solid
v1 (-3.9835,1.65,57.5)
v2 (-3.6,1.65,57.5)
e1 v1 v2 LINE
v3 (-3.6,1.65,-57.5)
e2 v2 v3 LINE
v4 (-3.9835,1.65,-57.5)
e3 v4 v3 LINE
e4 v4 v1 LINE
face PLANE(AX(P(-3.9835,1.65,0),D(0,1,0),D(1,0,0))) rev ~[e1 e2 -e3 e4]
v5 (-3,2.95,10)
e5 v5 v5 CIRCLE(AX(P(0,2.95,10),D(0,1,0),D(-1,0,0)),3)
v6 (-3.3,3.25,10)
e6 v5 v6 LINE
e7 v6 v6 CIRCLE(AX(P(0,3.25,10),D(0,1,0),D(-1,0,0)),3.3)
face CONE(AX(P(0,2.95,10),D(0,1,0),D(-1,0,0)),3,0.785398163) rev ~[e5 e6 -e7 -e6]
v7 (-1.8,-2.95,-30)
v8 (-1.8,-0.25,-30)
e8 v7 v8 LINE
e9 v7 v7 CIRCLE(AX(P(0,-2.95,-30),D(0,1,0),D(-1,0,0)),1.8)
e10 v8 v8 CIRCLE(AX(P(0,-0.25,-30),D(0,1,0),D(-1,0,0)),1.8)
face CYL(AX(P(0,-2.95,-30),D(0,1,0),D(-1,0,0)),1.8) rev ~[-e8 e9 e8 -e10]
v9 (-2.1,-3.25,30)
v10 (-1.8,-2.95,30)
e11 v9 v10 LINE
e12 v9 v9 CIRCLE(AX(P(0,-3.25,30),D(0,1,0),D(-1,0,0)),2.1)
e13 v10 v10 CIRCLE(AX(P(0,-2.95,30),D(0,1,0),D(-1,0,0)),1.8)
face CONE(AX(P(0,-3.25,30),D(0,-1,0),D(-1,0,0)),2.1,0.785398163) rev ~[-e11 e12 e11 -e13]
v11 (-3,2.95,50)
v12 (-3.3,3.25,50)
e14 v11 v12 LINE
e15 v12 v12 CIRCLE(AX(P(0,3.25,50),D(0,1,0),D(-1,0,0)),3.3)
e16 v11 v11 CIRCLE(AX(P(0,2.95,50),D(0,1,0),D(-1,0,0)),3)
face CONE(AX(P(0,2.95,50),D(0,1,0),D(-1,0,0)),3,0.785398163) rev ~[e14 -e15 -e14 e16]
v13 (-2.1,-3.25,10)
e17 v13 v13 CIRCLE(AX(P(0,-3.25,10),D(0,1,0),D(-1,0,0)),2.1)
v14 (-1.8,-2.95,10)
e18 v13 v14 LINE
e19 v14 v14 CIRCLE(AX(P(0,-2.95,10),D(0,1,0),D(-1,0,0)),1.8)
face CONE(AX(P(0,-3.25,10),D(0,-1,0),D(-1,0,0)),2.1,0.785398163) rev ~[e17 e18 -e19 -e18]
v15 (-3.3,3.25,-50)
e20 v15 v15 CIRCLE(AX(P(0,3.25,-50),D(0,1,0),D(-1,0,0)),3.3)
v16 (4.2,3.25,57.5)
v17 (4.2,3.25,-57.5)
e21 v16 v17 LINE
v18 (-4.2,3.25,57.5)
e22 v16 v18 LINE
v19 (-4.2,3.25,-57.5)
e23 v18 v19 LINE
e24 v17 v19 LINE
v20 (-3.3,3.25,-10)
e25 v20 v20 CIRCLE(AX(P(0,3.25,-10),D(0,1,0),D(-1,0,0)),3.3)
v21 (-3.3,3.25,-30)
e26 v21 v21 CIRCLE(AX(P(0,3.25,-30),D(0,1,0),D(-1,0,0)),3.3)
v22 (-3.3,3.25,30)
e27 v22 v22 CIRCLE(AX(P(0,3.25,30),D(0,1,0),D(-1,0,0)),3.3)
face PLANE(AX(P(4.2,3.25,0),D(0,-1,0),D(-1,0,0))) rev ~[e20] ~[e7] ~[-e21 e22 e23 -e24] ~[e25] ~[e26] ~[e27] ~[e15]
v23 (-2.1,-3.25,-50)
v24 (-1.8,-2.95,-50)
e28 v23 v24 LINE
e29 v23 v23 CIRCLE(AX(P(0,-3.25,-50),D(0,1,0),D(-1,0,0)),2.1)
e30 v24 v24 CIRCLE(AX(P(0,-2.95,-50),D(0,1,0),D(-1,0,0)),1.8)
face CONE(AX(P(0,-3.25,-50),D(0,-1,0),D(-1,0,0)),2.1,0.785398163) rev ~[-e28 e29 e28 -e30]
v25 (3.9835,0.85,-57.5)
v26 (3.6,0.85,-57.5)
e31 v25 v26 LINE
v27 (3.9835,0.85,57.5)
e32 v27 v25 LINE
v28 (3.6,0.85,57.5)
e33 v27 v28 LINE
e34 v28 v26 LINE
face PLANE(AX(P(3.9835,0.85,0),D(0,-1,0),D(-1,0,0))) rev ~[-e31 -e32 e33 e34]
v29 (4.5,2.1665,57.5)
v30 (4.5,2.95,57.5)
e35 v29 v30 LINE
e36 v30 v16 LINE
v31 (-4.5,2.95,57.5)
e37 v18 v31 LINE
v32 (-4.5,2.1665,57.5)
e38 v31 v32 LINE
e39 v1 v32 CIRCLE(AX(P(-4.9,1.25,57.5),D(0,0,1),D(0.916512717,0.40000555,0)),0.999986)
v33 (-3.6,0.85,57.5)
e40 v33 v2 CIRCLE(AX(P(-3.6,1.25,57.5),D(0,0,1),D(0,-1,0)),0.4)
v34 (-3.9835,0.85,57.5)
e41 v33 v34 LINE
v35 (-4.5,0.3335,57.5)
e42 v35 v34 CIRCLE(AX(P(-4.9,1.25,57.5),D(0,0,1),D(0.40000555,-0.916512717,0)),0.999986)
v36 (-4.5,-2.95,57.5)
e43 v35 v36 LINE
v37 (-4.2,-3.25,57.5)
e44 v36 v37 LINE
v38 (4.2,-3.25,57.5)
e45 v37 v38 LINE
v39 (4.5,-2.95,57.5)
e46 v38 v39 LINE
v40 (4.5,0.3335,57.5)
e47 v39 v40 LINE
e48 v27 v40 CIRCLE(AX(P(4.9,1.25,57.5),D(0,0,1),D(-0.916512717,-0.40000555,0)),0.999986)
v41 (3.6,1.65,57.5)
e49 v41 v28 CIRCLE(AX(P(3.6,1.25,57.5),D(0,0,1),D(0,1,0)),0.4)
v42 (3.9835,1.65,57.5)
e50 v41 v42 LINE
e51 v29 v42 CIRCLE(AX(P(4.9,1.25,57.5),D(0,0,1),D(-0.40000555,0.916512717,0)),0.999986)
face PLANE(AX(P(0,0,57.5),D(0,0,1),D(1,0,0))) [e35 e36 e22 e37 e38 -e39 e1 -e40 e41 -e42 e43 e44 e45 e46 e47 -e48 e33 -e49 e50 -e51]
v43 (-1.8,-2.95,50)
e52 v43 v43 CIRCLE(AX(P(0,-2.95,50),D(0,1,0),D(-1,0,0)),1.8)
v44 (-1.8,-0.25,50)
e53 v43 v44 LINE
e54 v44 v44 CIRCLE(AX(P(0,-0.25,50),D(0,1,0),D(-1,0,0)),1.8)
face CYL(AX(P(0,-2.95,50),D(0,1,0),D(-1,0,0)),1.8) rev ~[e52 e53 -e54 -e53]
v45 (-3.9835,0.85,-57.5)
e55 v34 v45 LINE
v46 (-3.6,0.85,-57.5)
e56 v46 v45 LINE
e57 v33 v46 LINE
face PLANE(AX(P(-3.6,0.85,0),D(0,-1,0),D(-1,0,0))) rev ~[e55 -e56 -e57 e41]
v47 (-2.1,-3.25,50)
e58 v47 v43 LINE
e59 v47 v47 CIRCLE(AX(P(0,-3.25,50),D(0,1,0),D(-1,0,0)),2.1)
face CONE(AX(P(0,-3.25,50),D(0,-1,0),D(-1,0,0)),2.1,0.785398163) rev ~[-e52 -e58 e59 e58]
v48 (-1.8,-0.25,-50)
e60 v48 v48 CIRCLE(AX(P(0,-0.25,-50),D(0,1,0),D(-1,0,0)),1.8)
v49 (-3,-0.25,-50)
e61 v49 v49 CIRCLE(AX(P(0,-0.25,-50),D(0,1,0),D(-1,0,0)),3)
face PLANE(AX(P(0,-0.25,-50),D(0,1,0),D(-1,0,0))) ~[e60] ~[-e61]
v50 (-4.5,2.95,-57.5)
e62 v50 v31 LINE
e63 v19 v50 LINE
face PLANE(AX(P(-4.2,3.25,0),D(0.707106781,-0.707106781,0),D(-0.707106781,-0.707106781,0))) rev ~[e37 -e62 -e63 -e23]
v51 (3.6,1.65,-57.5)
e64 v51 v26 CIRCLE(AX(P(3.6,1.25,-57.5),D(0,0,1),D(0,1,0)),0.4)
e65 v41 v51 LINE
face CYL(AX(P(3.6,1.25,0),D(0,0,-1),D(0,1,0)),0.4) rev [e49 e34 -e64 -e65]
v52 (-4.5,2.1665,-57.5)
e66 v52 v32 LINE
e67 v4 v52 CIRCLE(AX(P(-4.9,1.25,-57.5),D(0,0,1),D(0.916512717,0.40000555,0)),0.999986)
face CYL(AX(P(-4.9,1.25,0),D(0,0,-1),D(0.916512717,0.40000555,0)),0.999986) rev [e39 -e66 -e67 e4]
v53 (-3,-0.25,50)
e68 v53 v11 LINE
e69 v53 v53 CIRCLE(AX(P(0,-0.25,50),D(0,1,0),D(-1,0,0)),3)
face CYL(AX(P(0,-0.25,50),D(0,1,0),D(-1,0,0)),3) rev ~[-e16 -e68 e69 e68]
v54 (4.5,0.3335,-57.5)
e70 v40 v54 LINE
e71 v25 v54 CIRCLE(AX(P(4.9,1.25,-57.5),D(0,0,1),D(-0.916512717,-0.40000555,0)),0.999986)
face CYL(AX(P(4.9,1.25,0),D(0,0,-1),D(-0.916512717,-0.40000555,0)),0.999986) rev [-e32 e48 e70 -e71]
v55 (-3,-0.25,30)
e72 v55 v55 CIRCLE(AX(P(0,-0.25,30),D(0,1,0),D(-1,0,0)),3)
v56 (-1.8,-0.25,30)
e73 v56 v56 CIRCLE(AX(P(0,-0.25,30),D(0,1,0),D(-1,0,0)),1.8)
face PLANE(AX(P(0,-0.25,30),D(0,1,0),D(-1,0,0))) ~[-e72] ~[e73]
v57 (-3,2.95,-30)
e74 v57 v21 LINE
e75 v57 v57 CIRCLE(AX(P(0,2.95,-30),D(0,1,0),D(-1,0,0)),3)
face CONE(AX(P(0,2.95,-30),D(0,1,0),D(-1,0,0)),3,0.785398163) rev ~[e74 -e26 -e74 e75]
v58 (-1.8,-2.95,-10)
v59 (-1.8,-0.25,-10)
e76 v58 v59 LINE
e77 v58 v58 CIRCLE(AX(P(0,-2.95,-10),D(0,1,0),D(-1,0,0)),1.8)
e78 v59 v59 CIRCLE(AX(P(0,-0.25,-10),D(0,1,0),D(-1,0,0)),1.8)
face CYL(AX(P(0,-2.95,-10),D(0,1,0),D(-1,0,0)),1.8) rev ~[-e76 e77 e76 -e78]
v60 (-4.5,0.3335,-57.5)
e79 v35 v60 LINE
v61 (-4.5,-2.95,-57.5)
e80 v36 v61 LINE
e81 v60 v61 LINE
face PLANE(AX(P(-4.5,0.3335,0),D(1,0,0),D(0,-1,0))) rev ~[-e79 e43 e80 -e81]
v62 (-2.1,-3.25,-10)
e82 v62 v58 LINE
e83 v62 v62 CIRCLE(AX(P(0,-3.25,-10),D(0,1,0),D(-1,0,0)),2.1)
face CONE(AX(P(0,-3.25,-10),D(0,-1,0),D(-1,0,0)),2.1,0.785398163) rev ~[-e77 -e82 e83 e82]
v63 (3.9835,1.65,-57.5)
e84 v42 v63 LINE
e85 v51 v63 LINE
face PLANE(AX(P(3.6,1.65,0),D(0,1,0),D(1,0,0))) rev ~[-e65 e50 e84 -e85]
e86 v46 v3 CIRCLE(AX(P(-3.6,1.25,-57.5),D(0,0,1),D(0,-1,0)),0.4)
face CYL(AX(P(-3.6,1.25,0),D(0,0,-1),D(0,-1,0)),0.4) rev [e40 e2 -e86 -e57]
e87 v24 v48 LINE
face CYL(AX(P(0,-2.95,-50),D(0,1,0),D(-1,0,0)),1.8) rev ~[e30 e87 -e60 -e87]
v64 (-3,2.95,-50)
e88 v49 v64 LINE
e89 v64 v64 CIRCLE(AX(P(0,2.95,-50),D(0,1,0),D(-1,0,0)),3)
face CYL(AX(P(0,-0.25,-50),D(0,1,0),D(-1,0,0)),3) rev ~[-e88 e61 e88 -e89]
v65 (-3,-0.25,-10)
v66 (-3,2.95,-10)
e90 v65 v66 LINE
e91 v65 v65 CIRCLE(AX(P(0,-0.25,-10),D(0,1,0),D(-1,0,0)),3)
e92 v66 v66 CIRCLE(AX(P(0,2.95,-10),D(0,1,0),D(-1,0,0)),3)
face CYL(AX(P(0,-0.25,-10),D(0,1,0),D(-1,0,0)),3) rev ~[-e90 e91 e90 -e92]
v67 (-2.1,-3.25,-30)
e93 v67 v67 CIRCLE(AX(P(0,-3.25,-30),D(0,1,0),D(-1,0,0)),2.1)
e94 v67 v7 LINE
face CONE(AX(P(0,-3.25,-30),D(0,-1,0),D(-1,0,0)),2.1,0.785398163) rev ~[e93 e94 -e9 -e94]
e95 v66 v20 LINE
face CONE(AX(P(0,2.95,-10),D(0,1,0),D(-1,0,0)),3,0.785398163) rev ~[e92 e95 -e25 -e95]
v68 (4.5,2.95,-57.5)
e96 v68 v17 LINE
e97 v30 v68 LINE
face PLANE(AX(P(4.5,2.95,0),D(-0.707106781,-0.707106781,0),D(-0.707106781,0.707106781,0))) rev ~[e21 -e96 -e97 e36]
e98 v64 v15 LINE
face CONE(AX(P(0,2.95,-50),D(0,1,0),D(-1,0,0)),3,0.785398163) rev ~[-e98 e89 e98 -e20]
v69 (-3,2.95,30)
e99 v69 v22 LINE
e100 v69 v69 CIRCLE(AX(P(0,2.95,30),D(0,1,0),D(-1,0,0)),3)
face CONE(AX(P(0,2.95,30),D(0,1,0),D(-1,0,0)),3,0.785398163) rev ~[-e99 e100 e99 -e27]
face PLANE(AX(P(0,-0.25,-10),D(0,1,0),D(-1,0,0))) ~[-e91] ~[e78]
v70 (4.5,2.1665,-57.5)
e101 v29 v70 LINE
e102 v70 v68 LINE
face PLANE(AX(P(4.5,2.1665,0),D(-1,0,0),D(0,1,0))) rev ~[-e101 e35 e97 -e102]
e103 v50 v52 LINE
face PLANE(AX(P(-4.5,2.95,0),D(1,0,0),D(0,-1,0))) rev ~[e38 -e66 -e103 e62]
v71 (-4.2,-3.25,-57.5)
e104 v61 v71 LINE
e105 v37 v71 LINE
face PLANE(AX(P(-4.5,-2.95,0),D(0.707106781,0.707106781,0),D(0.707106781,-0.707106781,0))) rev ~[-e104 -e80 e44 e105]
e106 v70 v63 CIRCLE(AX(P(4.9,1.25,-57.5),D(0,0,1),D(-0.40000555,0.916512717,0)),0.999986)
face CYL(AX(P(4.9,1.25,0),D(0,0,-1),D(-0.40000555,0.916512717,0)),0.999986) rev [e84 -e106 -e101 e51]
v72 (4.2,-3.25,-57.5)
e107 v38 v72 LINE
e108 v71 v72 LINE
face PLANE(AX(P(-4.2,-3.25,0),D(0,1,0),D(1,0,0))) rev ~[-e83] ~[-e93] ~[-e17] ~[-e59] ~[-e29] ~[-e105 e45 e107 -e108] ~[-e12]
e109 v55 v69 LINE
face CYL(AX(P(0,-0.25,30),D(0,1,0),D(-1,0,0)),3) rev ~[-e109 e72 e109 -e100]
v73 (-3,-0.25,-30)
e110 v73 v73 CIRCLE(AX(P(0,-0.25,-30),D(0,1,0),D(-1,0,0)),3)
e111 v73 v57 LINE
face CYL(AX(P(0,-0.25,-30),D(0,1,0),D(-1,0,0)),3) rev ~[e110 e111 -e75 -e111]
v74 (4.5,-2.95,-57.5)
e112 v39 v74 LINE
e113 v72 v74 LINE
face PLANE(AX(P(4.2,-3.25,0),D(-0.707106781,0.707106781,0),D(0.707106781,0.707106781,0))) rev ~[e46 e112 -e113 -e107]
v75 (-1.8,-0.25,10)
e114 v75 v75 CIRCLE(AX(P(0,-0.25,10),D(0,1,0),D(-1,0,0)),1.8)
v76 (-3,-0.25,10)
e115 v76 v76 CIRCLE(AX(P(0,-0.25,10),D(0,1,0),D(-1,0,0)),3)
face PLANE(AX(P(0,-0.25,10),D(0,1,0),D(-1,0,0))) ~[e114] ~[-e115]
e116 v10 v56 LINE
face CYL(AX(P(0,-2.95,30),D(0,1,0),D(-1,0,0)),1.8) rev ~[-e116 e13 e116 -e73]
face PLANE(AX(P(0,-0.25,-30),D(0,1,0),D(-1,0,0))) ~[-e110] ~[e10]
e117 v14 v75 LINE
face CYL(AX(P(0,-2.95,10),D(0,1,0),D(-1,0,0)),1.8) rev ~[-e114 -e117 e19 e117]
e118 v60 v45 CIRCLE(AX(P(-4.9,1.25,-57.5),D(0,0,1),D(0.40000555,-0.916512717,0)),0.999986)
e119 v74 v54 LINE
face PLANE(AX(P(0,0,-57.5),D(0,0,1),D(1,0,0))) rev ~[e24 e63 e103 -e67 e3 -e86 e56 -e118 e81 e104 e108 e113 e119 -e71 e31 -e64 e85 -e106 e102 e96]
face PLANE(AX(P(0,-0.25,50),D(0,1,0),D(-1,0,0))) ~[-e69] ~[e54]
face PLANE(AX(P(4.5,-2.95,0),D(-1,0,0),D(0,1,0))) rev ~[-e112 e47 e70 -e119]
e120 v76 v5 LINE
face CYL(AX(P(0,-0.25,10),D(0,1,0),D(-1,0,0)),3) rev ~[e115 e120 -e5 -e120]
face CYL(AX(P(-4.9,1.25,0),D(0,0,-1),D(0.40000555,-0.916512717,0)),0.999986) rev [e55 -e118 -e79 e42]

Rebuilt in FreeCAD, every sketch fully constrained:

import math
import FreeCAD as App
import Part
import Sketcher

V = App.Vector
Q = App.Units.Quantity


def add_polygon(sketch, points):
    """Adds a closed chain of lines whose ends are joined by coincident constraints."""
    first, n = sketch.GeometryCount, len(points)
    for a, b in zip(points, points[1:] + points[:1]):
        sketch.addGeometry(Part.LineSegment(App.Vector(*a, 0), App.Vector(*b, 0)), False)
    for i in range(n):
        sketch.addConstraint(Sketcher.Constraint("Coincident", first + i, 2, first + (i + 1) % n, 1))

doc = App.newDocument("Part")
body = doc.addObject("PartDesign::Body", "Body")

# Sketch on XY plane
sketch1 = body.newObject("Sketcher::SketchObject", "Sketch")
sketch1.AttachmentSupport = (doc.getObject("XY_Plane"), [""])
sketch1.MapMode = "FlatFace"
sketch1.addGeometry(Part.LineSegment(V(-4.2, 3.25, 0), V(-4.5, 2.95, 0)), False)
sketch1.addGeometry(Part.LineSegment(V(-4.5, 2.95, 0), V(-4.5, 2.17, 0)), False)
sketch1.addGeometry(Part.ArcOfCircle(Part.Circle(V(-4.9, 1.25, 0), V(0, 0, 1), 1), math.radians(24), math.radians(66)), False)
sketch1.addGeometry(Part.LineSegment(V(-3.98, 1.65, 0), V(-3.6, 1.65, 0)), False)
sketch1.addGeometry(Part.ArcOfCircle(Part.Circle(V(-3.6, 1.25, 0), V(0, 0, 1), 0.4), math.radians(-90), math.radians(90)), False)
sketch1.addGeometry(Part.LineSegment(V(-3.6, 0.85, 0), V(-3.98, 0.85, 0)), False)
sketch1.addGeometry(Part.ArcOfCircle(Part.Circle(V(-4.9, 1.25, 0), V(0, 0, 1), 1), math.radians(-66), math.radians(-24)), False)
sketch1.addGeometry(Part.LineSegment(V(-4.5, 0.33, 0), V(-4.5, -2.95, 0)), False)
sketch1.addGeometry(Part.LineSegment(V(-4.5, -2.95, 0), V(-4.2, -3.25, 0)), False)
sketch1.addGeometry(Part.LineSegment(V(-4.2, -3.25, 0), V(4.2, -3.25, 0)), False)
sketch1.addGeometry(Part.LineSegment(V(4.2, -3.25, 0), V(4.5, -2.95, 0)), False)
sketch1.addGeometry(Part.LineSegment(V(4.5, -2.95, 0), V(4.5, 0.33, 0)), False)
sketch1.addGeometry(Part.ArcOfCircle(Part.Circle(V(4.9, 1.25, 0), V(0, 0, 1), 1), math.radians(-156), math.radians(-114)), False)
sketch1.addGeometry(Part.LineSegment(V(3.98, 0.85, 0), V(3.6, 0.85, 0)), False)
sketch1.addGeometry(Part.ArcOfCircle(Part.Circle(V(3.6, 1.25, 0), V(0, 0, 1), 0.4), math.radians(90), math.radians(270)), False)
sketch1.addGeometry(Part.LineSegment(V(3.6, 1.65, 0), V(3.98, 1.65, 0)), False)
sketch1.addGeometry(Part.ArcOfCircle(Part.Circle(V(4.9, 1.25, 0), V(0, 0, 1), 1), math.radians(114), math.radians(156)), False)
sketch1.addGeometry(Part.LineSegment(V(4.5, 2.17, 0), V(4.5, 2.95, 0)), False)
sketch1.addGeometry(Part.LineSegment(V(4.5, 2.95, 0), V(4.2, 3.25, 0)), False)
sketch1.addGeometry(Part.LineSegment(V(4.2, 3.25, 0), V(-4.2, 3.25, 0)), False)
sketch1.addConstraint(Sketcher.Constraint("Coincident", 0, 2, 1, 1))
sketch1.addConstraint(Sketcher.Constraint("Coincident", 1, 2, 2, 2))
sketch1.addConstraint(Sketcher.Constraint("Coincident", 2, 1, 3, 1))
sketch1.addConstraint(Sketcher.Constraint("Tangent", 3, 2, 4, 2))
sketch1.addConstraint(Sketcher.Constraint("Tangent", 4, 1, 5, 1))
sketch1.addConstraint(Sketcher.Constraint("Coincident", 5, 2, 6, 2))
sketch1.addConstraint(Sketcher.Constraint("Coincident", 6, 1, 7, 1))
sketch1.addConstraint(Sketcher.Constraint("Coincident", 7, 2, 8, 1))
sketch1.addConstraint(Sketcher.Constraint("Coincident", 8, 2, 9, 1))
sketch1.addConstraint(Sketcher.Constraint("Coincident", 9, 2, 10, 1))
sketch1.addConstraint(Sketcher.Constraint("Coincident", 10, 2, 11, 1))
sketch1.addConstraint(Sketcher.Constraint("Coincident", 11, 2, 12, 2))
sketch1.addConstraint(Sketcher.Constraint("Coincident", 12, 1, 13, 1))
sketch1.addConstraint(Sketcher.Constraint("Tangent", 13, 2, 14, 2))
sketch1.addConstraint(Sketcher.Constraint("Tangent", 14, 1, 15, 1))
sketch1.addConstraint(Sketcher.Constraint("Coincident", 15, 2, 16, 2))
sketch1.addConstraint(Sketcher.Constraint("Coincident", 16, 1, 17, 1))
sketch1.addConstraint(Sketcher.Constraint("Coincident", 17, 2, 18, 1))
sketch1.addConstraint(Sketcher.Constraint("Coincident", 18, 2, 19, 1))
sketch1.addConstraint(Sketcher.Constraint("Coincident", 19, 2, 0, 1))
sketch1.addConstraint(Sketcher.Constraint("Vertical", 1))
sketch1.addConstraint(Sketcher.Constraint("Horizontal", 3))
sketch1.addConstraint(Sketcher.Constraint("Horizontal", 5))
sketch1.addConstraint(Sketcher.Constraint("Vertical", 7))
sketch1.addConstraint(Sketcher.Constraint("Horizontal", 9))
sketch1.addConstraint(Sketcher.Constraint("Vertical", 11))
sketch1.addConstraint(Sketcher.Constraint("Horizontal", 13))
sketch1.addConstraint(Sketcher.Constraint("Horizontal", 15))
sketch1.addConstraint(Sketcher.Constraint("Vertical", 17))
sketch1.addConstraint(Sketcher.Constraint("Horizontal", 19))
sketch1.addConstraint(Sketcher.Constraint("Coincident", 6, 3, 2, 3))
sketch1.addConstraint(Sketcher.Constraint("Coincident", 16, 3, 12, 3))
sketch1.addConstraint(Sketcher.Constraint("Equal", 2, 6))
sketch1.addConstraint(Sketcher.Constraint("Equal", 6, 12))
sketch1.addConstraint(Sketcher.Constraint("Equal", 4, 14))
sketch1.addConstraint(Sketcher.Constraint("Equal", 12, 16))
sketch1.addConstraint(Sketcher.Constraint("Symmetric", 0, 2, 10, 2, -1, 1))
sketch1.addConstraint(Sketcher.Constraint("Symmetric", 7, 2, 17, 2, -1, 1))
sketch1.addConstraint(Sketcher.Constraint("Symmetric", 8, 2, 18, 2, -1, 1))
sketch1.addConstraint(Sketcher.Constraint("Symmetric", 2, 3, 12, 3, -2))
sketch1.addConstraint(Sketcher.Constraint("Symmetric", 4, 3, 14, 3, -2))
sketch1.addConstraint(Sketcher.Constraint("Symmetric", 7, 2, 10, 2, -2))
sketch1.addConstraint(Sketcher.Constraint("Perpendicular", 0, 8))
sketch1.addConstraint(Sketcher.Constraint("Perpendicular", 8, 10))
sketch1.addConstraint(Sketcher.Constraint("Horizontal", 2, 3, 4, 3))
sketch1.addConstraint(Sketcher.Constraint("Vertical", 9, 2, 18, 2))
sketch1.addConstraint(Sketcher.Constraint("Radius", 2, 1.0))
sketch1.addConstraint(Sketcher.Constraint("Radius", 4, 0.4))
sketch1.addConstraint(Sketcher.Constraint("DistanceX", 9, 1, 9, 2, 8.4))
sketch1.addConstraint(Sketcher.Constraint("DistanceY", 14, 3, 18, 2, 2.0))
sketch1.addConstraint(Sketcher.Constraint("DistanceX", 2, 3, -1, 1, 4.9))
sketch1.addConstraint(Sketcher.Constraint("DistanceX", 4, 3, -1, 1, 3.6))
sketch1.addConstraint(Sketcher.Constraint("DistanceX", 0, 2, -1, 1, 4.5))
sketch1.addConstraint(Sketcher.Constraint("DistanceY", 7, 2, 5, 2, 3.8))
pad1 = body.newObject("PartDesign::Pad", "Pad")
pad1.Profile = sketch1
pad1.Length = 115
pad1.Midplane = True

# Sketch on XY plane
sketch2 = body.newObject("Sketcher::SketchObject", "Sketch001")
sketch2.AttachmentSupport = (doc.getObject("XY_Plane"), [""])
sketch2.MapMode = "FlatFace"
sketch2.AttachmentOffset = App.Placement(V(0, 0, 50), App.Rotation())
add_polygon(sketch2, [(0, -3.25), (0, 3.25), (-3.3, 3.25), (-3, 2.95), (-3, -0.25), (-1.8, -0.25), (-1.8, -2.95), (-2.1, -3.25)])  # lines 0-7
sketch2.addConstraint(Sketcher.Constraint("Vertical", 0))
sketch2.addConstraint(Sketcher.Constraint("Horizontal", 1))
sketch2.addConstraint(Sketcher.Constraint("Vertical", 3))
sketch2.addConstraint(Sketcher.Constraint("Horizontal", 4))
sketch2.addConstraint(Sketcher.Constraint("Vertical", 5))
sketch2.addConstraint(Sketcher.Constraint("Horizontal", 7))
sketch2.addConstraint(Sketcher.Constraint("Symmetric", 0, 2, 7, 2, -1, 1))
sketch2.addConstraint(Sketcher.Constraint("Perpendicular", 2, 6))
sketch2.addConstraint(Sketcher.Constraint("Equal", 2, 6))
sketch2.addConstraint(Sketcher.Constraint("Angle", 2, Q("-45 deg")))
sketch2.addConstraint(Sketcher.Constraint("DistanceX", 1, 2, 1, 1, 3.3))
sketch2.addConstraint(Sketcher.Constraint("DistanceX", 4, 1, 4, 2, 1.2))
sketch2.addConstraint(Sketcher.Constraint("DistanceY", 0, 1, 0, 2, 6.5))
sketch2.addConstraint(Sketcher.Constraint("DistanceY", 3, 2, 3, 1, 3.2))
sketch2.addConstraint(Sketcher.Constraint("DistanceY", 5, 2, 5, 1, 2.7))
groove = body.newObject("PartDesign::Groove", "Groove")
groove.Profile = sketch2
groove.ReferenceAxis = (sketch2, ["V_Axis"])
groove.Angle = 360
doc.recompute()

linearpattern = body.newObject("PartDesign::LinearPattern", "LinearPattern")
linearpattern.Originals = [groove]
linearpattern.Direction = (doc.getObject("Z_Axis"), [""])
linearpattern.Mode = "offset"
linearpattern.Offset = 20
linearpattern.Occurrences = 6
linearpattern.Reversed = True
body.Tip = linearpattern

doc.recompute()
